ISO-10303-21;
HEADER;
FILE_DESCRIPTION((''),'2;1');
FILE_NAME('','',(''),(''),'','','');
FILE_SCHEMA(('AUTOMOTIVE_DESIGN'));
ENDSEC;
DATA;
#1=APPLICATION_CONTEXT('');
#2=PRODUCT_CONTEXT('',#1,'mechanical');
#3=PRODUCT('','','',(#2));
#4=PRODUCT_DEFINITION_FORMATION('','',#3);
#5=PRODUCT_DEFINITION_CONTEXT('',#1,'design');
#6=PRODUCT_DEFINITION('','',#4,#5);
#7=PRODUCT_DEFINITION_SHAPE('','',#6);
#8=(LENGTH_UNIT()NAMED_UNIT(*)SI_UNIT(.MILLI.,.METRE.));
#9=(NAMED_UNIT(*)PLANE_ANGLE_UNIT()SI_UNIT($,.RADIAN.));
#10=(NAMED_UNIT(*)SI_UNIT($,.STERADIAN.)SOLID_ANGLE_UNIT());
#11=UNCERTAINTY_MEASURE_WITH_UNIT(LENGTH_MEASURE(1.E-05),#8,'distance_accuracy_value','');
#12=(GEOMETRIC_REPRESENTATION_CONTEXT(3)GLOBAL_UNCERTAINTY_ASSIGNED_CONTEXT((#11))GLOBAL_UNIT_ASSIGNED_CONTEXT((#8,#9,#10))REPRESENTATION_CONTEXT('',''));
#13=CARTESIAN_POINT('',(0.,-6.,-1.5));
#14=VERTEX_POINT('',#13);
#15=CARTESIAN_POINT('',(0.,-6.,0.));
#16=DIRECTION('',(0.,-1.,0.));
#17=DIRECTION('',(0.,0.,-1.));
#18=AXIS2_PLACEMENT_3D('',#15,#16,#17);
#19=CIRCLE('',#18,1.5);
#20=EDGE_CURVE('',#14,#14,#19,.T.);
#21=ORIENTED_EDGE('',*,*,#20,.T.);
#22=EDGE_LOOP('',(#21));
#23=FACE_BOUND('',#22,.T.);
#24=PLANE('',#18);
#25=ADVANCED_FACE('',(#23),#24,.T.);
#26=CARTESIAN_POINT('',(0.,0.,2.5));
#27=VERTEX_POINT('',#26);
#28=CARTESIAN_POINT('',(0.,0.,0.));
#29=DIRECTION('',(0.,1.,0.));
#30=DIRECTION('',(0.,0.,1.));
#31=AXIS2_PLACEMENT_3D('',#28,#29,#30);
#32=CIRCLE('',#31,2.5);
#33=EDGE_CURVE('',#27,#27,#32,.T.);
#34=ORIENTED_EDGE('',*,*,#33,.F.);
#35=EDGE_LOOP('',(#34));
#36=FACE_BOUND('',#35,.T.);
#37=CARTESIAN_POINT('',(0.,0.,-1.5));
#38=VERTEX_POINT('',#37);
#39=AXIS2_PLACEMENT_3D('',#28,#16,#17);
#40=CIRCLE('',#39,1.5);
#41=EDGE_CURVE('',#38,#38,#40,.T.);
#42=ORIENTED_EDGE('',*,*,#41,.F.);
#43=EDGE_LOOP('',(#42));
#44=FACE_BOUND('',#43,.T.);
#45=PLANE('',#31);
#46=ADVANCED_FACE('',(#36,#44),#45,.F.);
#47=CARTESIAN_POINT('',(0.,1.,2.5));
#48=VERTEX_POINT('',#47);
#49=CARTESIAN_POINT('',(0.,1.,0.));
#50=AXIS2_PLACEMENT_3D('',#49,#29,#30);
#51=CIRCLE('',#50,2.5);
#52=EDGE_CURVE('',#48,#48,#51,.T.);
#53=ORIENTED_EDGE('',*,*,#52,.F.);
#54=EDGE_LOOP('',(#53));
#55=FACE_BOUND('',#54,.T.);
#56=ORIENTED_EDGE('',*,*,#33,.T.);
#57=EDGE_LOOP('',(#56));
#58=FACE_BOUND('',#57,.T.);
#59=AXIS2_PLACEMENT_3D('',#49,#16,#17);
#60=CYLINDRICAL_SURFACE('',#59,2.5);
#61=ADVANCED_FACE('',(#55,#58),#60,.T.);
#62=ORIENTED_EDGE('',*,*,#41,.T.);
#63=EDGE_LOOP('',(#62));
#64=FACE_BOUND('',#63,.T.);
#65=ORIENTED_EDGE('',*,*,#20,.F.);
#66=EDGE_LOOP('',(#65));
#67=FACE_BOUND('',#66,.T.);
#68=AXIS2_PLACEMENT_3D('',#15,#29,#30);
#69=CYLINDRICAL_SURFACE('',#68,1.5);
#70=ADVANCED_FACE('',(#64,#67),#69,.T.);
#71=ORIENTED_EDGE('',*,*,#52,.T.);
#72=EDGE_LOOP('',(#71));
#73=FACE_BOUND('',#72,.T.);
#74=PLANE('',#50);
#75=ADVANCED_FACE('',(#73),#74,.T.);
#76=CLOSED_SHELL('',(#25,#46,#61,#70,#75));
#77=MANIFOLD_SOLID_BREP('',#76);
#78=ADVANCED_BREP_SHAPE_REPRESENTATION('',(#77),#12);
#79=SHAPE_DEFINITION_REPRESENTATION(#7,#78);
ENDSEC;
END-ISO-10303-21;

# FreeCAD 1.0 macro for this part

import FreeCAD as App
import Part
import Sketcher
Q = App.Units.Quantity

doc = App.newDocument("Part")
body = doc.addObject("PartDesign::Body", "Body")

sketch1 = body.newObject("Sketcher::SketchObject", "Sketch")
sketch1.AttachmentSupport = (doc.getObject("XZ_Plane"), [""])
sketch1.MapMode = "FlatFace"
sketch1.addGeometry(Part.Circle(App.Vector(0, 0, 0), App.Vector(0, 0, 1), 2.5), False)
sketch1.addConstraint(Sketcher.Constraint("Coincident", 0, 3, -1, 1))
sketch1.addConstraint(Sketcher.Constraint("Diameter", 0, Q("5 mm")))
pad1 = body.newObject("PartDesign::Pad", "Pad")
pad1.Profile = sketch1
pad1.Length = 1
pad1.Reversed = True

sketch2 = body.newObject("Sketcher::SketchObject", "Sketch001")
sketch2.AttachmentSupport = (doc.getObject("XZ_Plane"), [""])
sketch2.MapMode = "FlatFace"
sketch2.addGeometry(Part.Circle(App.Vector(0, 0, 0), App.Vector(0, 0, 1), 1.5), False)
sketch2.addConstraint(Sketcher.Constraint("Coincident", 0, 3, -1, 1))
sketch2.addConstraint(Sketcher.Constraint("Diameter", 0, Q("3 mm")))
pad2 = body.newObject("PartDesign::Pad", "Pad001")
pad2.Profile = sketch2
pad2.Length = 6

doc.recompute()
